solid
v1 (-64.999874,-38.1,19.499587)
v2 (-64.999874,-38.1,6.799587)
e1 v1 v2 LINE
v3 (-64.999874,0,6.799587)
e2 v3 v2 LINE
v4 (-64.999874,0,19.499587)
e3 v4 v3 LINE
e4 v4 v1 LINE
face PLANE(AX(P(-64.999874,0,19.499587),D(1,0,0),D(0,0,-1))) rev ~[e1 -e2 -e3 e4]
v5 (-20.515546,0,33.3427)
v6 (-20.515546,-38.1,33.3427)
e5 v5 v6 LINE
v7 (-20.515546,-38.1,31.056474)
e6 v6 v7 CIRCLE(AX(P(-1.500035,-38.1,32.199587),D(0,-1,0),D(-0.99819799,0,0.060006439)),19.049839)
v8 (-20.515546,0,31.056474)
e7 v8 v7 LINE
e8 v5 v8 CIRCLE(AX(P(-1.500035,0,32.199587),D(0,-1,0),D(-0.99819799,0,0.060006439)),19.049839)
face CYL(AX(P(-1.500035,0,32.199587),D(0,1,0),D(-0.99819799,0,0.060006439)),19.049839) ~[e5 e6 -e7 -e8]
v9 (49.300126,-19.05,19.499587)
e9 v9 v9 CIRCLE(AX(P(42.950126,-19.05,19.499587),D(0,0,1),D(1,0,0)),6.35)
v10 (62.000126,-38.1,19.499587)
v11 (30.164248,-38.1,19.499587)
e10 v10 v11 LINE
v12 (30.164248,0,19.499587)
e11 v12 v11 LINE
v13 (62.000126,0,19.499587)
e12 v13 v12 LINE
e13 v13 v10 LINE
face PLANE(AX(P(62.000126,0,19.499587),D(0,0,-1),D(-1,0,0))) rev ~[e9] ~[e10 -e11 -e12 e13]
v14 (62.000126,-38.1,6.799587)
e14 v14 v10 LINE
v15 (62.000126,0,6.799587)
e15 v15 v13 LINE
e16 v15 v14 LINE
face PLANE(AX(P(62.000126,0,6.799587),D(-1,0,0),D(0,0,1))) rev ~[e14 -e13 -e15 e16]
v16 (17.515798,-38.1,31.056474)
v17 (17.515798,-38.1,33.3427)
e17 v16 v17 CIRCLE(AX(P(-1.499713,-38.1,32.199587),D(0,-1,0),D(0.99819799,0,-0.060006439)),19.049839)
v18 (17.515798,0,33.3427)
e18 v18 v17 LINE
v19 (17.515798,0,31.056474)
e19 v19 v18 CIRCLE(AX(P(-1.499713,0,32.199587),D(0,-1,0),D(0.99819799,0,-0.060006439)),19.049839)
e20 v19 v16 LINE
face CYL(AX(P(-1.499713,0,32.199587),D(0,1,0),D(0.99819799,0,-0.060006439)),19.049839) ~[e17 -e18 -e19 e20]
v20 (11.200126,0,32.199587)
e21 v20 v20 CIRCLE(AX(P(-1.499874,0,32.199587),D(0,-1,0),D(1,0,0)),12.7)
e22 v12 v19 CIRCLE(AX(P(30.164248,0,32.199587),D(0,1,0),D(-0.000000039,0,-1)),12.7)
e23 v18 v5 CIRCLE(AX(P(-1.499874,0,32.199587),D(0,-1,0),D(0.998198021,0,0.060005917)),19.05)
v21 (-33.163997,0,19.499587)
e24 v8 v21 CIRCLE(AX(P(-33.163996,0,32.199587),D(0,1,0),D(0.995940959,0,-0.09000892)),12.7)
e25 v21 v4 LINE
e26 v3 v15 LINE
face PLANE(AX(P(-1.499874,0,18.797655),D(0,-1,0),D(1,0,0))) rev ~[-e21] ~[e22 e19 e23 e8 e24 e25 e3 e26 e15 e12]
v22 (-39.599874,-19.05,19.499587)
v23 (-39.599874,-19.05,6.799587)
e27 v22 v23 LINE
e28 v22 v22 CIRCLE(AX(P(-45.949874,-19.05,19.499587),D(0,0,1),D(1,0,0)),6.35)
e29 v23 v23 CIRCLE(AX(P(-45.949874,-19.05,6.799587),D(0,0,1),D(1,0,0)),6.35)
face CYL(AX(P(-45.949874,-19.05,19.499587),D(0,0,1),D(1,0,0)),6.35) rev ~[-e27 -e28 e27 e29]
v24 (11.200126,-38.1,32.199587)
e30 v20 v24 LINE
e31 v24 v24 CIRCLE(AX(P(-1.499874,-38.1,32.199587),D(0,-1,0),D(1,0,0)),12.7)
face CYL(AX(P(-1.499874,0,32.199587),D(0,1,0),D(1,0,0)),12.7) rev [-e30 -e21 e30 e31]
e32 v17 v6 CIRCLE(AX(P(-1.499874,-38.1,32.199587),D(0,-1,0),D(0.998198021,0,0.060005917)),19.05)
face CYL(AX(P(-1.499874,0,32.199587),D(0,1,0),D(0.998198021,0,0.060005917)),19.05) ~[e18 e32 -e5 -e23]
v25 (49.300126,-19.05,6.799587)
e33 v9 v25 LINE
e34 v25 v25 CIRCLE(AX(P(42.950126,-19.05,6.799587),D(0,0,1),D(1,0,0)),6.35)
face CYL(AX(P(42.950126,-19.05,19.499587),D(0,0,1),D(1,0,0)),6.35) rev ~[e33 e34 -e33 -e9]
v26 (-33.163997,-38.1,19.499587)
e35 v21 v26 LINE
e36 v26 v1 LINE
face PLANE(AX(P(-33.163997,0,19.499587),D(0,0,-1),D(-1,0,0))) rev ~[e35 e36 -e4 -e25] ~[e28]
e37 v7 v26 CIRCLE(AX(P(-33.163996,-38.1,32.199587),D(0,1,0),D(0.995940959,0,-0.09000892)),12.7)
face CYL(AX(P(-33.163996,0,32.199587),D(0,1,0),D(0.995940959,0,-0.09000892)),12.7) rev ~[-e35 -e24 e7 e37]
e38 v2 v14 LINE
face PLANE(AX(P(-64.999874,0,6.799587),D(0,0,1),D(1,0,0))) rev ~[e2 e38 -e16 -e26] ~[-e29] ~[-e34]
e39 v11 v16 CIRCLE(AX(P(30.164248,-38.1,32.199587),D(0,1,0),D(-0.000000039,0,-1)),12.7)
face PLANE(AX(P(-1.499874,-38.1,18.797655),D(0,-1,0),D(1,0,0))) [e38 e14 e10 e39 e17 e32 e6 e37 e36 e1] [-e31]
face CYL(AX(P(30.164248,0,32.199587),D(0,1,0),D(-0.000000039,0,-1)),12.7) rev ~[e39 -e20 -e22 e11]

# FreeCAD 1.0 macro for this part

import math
import FreeCAD as App
import Part
import Sketcher
Q = App.Units.Quantity

doc = App.newDocument("Part")
body = doc.addObject("PartDesign::Body", "Body")

sketch1 = body.newObject("Sketcher::SketchObject", "Sketch")
sketch1.AttachmentSupport = (doc.getObject("XZ_Plane"), [""])
sketch1.MapMode = "FlatFace"
sketch1.addGeometry(Part.LineSegment(App.Vector(-33.163997, 19.499587, 0), App.Vector(-64.999874, 19.499587, 0)), False)
sketch1.addGeometry(Part.LineSegment(App.Vector(-64.999874, 19.499587, 0), App.Vector(-64.999874, 6.799587, 0)), False)
sketch1.addGeometry(Part.LineSegment(App.Vector(-64.999874, 6.799587, 0), App.Vector(62.000126, 6.799587, 0)), False)
sketch1.addGeometry(Part.LineSegment(App.Vector(62.000126, 6.799587, 0), App.Vector(62.000126, 19.499587, 0)), False)
sketch1.addGeometry(Part.LineSegment(App.Vector(62.000126, 19.499587, 0), App.Vector(30.164248, 19.499587, 0)), False)
sketch1.addGeometry(Part.ArcOfCircle(Part.Circle(App.Vector(30.164248, 32.199587, 0), App.Vector(0, 0, 1), 12.7), math.radians(-174.83588), math.radians(-90.000002)), False)
sketch1.addGeometry(Part.ArcOfCircle(Part.Circle(App.Vector(-1.499713, 32.199587, 0), App.Vector(0, 0, 1), 19.049839), math.radians(-3.440182), math.radians(3.440182)), False)
sketch1.addGeometry(Part.ArcOfCircle(Part.Circle(App.Vector(-1.499874, 32.199587, 0), App.Vector(0, 0, 1), 19.05), math.radians(3.440152), math.radians(176.559848)), False)
sketch1.addGeometry(Part.ArcOfCircle(Part.Circle(App.Vector(-1.500035, 32.199587, 0), App.Vector(0, 0, 1), 19.049839), math.radians(176.559818), math.radians(183.440182)), False)
sketch1.addGeometry(Part.ArcOfCircle(Part.Circle(App.Vector(-33.163996, 32.199587, 0), App.Vector(0, 0, 1), 12.7), math.radians(-90.000002), math.radians(-5.16412)), False)
sketch1.addGeometry(Part.Circle(App.Vector(-1.499874, 32.199587, 0), App.Vector(0, 0, 1), 12.7), False)
sketch1.addConstraint(Sketcher.Constraint("Coincident", 0, 2, 1, 1))
sketch1.addConstraint(Sketcher.Constraint("Coincident", 1, 2, 2, 1))
sketch1.addConstraint(Sketcher.Constraint("Coincident", 2, 2, 3, 1))
sketch1.addConstraint(Sketcher.Constraint("Coincident", 3, 2, 4, 1))
sketch1.addConstraint(Sketcher.Constraint("Coincident", 4, 2, 5, 2))
sketch1.addConstraint(Sketcher.Constraint("Coincident", 5, 1, 6, 1))
sketch1.addConstraint(Sketcher.Constraint("Coincident", 6, 2, 7, 1))
sketch1.addConstraint(Sketcher.Constraint("Coincident", 7, 2, 8, 1))
sketch1.addConstraint(Sketcher.Constraint("Coincident", 8, 2, 9, 2))
sketch1.addConstraint(Sketcher.Constraint("Coincident", 9, 1, 0, 1))
sketch1.addConstraint(Sketcher.Constraint("Horizontal", 0))
sketch1.addConstraint(Sketcher.Constraint("Vertical", 1))
sketch1.addConstraint(Sketcher.Constraint("Horizontal", 2))
sketch1.addConstraint(Sketcher.Constraint("Vertical", 3))
sketch1.addConstraint(Sketcher.Constraint("Horizontal", 4))
sketch1.addConstraint(Sketcher.Constraint("Coincident", 10, 3, 7, 3))
sketch1.addConstraint(Sketcher.Constraint("Diameter", 10, Q("1 in")))
sketch1.addConstraint(Sketcher.Constraint("Radius", 5, Q("0.5 in")))
sketch1.addConstraint(Sketcher.Constraint("Radius", 9, Q("0.5 in")))
sketch1.addConstraint(Sketcher.Constraint("DistanceX", 2, 1, 2, 2, Q("5 in")))
sketch1.addConstraint(Sketcher.Constraint("Radius", 7, Q("0.75 in")))
sketch1.addConstraint(Sketcher.Constraint("DistanceY", 1, 2, 1, 1, Q("0.5 in")))
sketch1.addConstraint(Sketcher.Constraint("DistanceY", 3, 1, 3, 2, Q("0.5 in")))
sketch1.addConstraint(Sketcher.Constraint("DistanceY", 1, 2, 8, 3, Q("1 in")))
sketch1.addConstraint(Sketcher.Constraint("DistanceY", 1, 2, 10, 3, Q("1 in")))
sketch1.addConstraint(Sketcher.Constraint("DistanceY", 2, 2, 6, 3, Q("1 in")))
sketch1.addConstraint(Sketcher.Constraint("DistanceX", 0, 2, 10, 3, Q("2.5 in")))
sketch1.addConstraint(Sketcher.Constraint("Radius", 6, Q("19.049839 mm")))
sketch1.addConstraint(Sketcher.Constraint("Radius", 8, Q("19.049839 mm")))
sketch1.addConstraint(Sketcher.Constraint("DistanceX", 4, 2, 4, 1, Q("31.835878 mm")))
sketch1.addConstraint(Sketcher.Constraint("DistanceY", -1, 1, 6, 2, Q("33.3427 mm")))
sketch1.addConstraint(Sketcher.Constraint("DistanceY", -1, 1, 7, 2, Q("33.3427 mm")))
sketch1.addConstraint(Sketcher.Constraint("DistanceX", 0, 2, 0, 1, Q("31.835877 mm")))
sketch1.addConstraint(Sketcher.Constraint("DistanceX", -1, 1, 5, 3, Q("30.164248 mm")))
sketch1.addConstraint(Sketcher.Constraint("DistanceX", -1, 1, 4, 2, Q("30.164248 mm")))
sketch1.addConstraint(Sketcher.Constraint("DistanceX", 9, 3, 8, 3, Q("31.663961 mm")))
sketch1.addConstraint(Sketcher.Constraint("DistanceX", 6, 2, 5, 3, Q("12.64845 mm")))
pad1 = body.newObject("PartDesign::Pad", "Pad")
pad1.Profile = sketch1
pad1.Length = Q("1.5 in")

sketch2 = body.newObject("Sketcher::SketchObject", "Sketch001")
sketch2.AttachmentSupport = (doc.getObject("XY_Plane"), [""])
sketch2.MapMode = "FlatFace"
sketch2.AttachmentOffset = App.Placement(App.Vector(0, 0, 19.499587), App.Rotation())
sketch2.addGeometry(Part.Circle(App.Vector(43, -19, 0), App.Vector(0, 0, 1), 6), False)
sketch2.addGeometry(Part.Circle(App.Vector(-46, -19, 0), App.Vector(0, 0, 1), 6), False)
sketch2.addConstraint(Sketcher.Constraint("Equal", 0, 1))
sketch2.addConstraint(Sketcher.Constraint("Horizontal", 0, 3, 1, 3))
sketch2.addConstraint(Sketcher.Constraint("Diameter", 0, Q("0.5 in")))
sketch2.addConstraint(Sketcher.Constraint("DistanceX", 1, 3, 0, 3, Q("3.5 in")))
sketch2.addConstraint(Sketcher.Constraint("DistanceY", 0, 3, -1, 1, Q("0.75 in")))
sketch2.addConstraint(Sketcher.Constraint("DistanceX", -1, 1, 0, 3, Q("42.950126 mm")))
pocket1 = body.newObject("PartDesign::Pocket", "Pocket")
pocket1.Profile = sketch2
pocket1.Type = "ThroughAll"

doc.recompute()
